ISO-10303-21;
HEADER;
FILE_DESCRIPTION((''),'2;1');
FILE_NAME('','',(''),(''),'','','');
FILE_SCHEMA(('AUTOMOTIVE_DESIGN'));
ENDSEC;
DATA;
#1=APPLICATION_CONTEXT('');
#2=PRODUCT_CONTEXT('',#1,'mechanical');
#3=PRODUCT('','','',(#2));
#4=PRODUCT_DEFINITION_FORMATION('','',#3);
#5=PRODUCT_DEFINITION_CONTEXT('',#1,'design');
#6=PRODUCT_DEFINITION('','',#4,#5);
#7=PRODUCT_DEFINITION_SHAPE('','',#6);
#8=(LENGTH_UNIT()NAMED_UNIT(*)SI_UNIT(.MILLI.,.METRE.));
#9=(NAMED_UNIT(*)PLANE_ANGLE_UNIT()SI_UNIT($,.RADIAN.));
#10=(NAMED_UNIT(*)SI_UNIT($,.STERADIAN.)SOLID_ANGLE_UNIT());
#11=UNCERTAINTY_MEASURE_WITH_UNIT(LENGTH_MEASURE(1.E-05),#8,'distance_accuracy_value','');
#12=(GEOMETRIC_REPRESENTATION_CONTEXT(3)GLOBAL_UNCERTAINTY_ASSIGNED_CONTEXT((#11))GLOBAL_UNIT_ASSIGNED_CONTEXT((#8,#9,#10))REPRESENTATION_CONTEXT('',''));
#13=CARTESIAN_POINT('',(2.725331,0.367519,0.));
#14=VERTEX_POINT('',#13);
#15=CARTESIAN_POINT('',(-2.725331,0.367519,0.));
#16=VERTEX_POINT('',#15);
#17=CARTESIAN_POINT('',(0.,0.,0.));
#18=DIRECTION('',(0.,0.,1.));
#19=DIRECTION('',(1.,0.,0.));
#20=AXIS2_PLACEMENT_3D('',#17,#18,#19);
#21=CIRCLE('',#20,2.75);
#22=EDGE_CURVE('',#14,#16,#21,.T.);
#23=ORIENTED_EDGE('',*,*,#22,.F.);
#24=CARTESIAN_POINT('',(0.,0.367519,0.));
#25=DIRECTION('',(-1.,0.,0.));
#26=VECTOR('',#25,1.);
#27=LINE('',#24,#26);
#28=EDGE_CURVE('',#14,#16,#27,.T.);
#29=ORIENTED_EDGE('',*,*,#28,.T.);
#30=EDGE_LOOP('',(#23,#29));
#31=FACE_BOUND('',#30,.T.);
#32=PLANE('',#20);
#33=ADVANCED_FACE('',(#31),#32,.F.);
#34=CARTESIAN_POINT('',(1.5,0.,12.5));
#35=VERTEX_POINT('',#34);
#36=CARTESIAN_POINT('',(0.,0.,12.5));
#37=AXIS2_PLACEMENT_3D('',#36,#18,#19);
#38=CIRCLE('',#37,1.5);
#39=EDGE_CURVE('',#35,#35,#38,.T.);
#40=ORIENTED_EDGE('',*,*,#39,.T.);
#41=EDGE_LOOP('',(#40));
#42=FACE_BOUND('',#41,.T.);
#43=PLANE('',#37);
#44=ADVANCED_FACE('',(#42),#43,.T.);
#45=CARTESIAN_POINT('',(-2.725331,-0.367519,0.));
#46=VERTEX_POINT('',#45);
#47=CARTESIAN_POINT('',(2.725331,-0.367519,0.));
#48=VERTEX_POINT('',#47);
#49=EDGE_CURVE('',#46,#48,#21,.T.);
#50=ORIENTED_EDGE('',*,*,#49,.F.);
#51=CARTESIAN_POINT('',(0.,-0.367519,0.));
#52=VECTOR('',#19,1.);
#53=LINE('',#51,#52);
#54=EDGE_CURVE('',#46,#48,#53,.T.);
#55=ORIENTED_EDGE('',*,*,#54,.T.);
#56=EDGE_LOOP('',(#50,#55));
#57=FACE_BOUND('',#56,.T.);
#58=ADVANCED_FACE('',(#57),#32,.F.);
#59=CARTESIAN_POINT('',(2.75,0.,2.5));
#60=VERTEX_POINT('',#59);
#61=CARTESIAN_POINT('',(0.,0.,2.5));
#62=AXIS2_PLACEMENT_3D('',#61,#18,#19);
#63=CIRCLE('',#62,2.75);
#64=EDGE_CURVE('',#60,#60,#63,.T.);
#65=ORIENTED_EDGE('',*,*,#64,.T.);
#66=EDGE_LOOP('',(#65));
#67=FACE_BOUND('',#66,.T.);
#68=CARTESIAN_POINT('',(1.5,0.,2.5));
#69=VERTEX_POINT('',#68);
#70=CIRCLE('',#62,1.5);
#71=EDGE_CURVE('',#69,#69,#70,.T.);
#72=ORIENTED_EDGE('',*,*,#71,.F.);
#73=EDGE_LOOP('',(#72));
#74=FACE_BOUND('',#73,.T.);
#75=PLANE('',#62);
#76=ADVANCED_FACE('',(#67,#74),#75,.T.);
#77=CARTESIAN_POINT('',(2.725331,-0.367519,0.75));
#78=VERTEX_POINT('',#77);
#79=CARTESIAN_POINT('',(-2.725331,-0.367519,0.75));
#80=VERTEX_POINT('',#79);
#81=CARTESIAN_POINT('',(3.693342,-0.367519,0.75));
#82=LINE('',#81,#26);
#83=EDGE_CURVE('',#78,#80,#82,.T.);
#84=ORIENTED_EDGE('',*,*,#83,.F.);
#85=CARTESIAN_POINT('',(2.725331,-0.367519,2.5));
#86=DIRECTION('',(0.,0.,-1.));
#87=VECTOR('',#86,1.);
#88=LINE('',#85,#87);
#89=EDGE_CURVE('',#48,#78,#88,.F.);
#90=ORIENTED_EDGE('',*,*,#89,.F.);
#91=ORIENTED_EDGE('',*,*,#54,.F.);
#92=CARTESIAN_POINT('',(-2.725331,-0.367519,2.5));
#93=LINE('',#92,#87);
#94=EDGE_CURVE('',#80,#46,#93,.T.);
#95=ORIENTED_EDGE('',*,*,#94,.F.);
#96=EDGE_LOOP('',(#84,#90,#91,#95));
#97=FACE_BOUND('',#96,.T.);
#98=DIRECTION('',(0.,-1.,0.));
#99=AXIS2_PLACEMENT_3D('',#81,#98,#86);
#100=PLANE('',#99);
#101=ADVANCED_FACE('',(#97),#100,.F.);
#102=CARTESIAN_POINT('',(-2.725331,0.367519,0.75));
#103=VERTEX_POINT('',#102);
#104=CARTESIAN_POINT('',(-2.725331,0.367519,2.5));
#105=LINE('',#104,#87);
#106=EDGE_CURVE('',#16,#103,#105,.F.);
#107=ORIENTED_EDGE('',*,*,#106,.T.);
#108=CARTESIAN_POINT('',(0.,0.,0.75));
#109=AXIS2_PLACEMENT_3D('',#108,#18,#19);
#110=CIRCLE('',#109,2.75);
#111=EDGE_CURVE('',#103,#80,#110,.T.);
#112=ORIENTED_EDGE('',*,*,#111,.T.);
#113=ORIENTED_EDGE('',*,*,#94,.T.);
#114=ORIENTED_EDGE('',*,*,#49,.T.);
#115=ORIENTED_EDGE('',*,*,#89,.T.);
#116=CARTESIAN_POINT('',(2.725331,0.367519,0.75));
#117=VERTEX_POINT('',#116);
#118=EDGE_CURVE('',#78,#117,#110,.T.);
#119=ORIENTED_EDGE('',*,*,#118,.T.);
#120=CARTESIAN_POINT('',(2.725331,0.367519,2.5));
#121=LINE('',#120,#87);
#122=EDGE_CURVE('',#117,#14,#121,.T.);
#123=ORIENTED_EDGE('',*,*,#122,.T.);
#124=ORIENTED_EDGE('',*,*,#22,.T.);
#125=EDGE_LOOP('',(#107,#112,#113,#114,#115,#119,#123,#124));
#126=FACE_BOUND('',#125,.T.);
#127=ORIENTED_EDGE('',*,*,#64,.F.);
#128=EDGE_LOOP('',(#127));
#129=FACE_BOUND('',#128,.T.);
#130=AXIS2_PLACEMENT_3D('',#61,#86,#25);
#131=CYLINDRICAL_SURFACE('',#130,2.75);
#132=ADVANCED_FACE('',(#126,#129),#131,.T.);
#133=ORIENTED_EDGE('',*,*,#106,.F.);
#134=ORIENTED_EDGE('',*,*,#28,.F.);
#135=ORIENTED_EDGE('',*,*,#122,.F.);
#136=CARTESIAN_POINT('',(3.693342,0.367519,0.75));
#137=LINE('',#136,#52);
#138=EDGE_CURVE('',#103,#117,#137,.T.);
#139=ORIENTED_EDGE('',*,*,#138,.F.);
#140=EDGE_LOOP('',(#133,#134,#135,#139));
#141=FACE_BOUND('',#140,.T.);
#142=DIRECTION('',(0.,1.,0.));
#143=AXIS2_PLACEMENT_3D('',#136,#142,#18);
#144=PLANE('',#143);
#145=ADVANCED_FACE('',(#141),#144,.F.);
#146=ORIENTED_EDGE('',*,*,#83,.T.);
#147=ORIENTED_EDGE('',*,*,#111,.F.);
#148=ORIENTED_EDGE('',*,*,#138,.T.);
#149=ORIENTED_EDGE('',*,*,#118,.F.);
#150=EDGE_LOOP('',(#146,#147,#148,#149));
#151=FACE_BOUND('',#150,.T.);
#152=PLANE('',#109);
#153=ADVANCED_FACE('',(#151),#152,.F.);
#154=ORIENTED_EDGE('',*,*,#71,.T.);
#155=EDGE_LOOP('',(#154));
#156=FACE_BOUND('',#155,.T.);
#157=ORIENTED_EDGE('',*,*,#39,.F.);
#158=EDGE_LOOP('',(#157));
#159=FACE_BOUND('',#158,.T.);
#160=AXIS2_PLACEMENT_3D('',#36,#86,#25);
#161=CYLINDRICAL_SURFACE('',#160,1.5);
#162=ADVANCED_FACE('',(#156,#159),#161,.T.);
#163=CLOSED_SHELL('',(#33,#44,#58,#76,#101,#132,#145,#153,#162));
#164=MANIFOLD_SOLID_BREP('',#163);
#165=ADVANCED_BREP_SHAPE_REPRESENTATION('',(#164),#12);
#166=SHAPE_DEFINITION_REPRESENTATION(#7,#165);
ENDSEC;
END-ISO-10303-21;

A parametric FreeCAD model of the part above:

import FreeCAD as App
import Part
import Sketcher

V = App.Vector
Q = App.Units.Quantity


def add_polygon(sketch, points):
    """Adds a closed chain of lines whose ends are joined by coincident constraints."""
    first, n = sketch.GeometryCount, len(points)
    for a, b in zip(points, points[1:] + points[:1]):
        sketch.addGeometry(Part.LineSegment(App.Vector(*a, 0), App.Vector(*b, 0)), False)
    for i in range(n):
        sketch.addConstraint(Sketcher.Constraint("Coincident", first + i, 2, first + (i + 1) % n, 1))

doc = App.newDocument("Part")
params = doc.addObject("Spreadsheet::Sheet", "Params")
for row, (alias, value) in enumerate([
    ("sketch1_diameter", "5.5 mm"),
    ("pad1_length", "2.5 mm"),
    ("sketch2_diameter", "3 mm"),
    ("pad2_length", "10 mm"),
    ("pocket1_length", "0.75 mm"),
], start=1):
    params.set(f"A{row}", alias)
    params.set(f"B{row}", "=" + value)
    params.setAlias(f"B{row}", alias)

body = doc.addObject("PartDesign::Body", "Body")

sketch1 = body.newObject("Sketcher::SketchObject", "Sketch")
sketch1.AttachmentSupport = (doc.getObject("XY_Plane"), [""])
sketch1.MapMode = "FlatFace"
sketch1.addGeometry(Part.Circle(V(0, 0, 0), V(0, 0, 1), 2.8), False)
sketch1.addConstraint(Sketcher.Constraint("Coincident", 0, 3, -1, 1))
sketch1.addConstraint(Sketcher.Constraint("Diameter", 0, Q("5.5 mm")))
sketch1.setExpression("Constraints[1]", "Params.sketch1_diameter")
pad1 = body.newObject("PartDesign::Pad", "Pad")
pad1.Profile = sketch1
pad1.setExpression("Length", "Params.pad1_length")

sketch2 = body.newObject("Sketcher::SketchObject", "Sketch001")
sketch2.AttachmentSupport = (doc.getObject("XY_Plane"), [""])
sketch2.MapMode = "FlatFace"
sketch2.AttachmentOffset = App.Placement(V(0, 0, 2.5), App.Rotation())
sketch2.addGeometry(Part.Circle(V(0, 0, 0), V(0, 0, 1), 1.5), False)
sketch2.addConstraint(Sketcher.Constraint("Coincident", 0, 3, -1, 1))
sketch2.addConstraint(Sketcher.Constraint("Diameter", 0, Q("3 mm")))
sketch2.setExpression("Constraints[1]", "Params.sketch2_diameter")
pad2 = body.newObject("PartDesign::Pad", "Pad001")
pad2.Profile = sketch2
pad2.setExpression("Length", "Params.pad2_length")

sketch3 = body.newObject("Sketcher::SketchObject", "Sketch002")
sketch3.AttachmentSupport = (doc.getObject("XY_Plane"), [""])
sketch3.MapMode = "FlatFace"
add_polygon(sketch3, [(3.7, 0.4), (3.7, -0.4), (-3.7, -0.4), (-3.7, 0.4)])
sketch3.addConstraint(Sketcher.Constraint("Vertical", 0))
sketch3.addConstraint(Sketcher.Constraint("Horizontal", 1))
sketch3.addConstraint(Sketcher.Constraint("Vertical", 2))
sketch3.addConstraint(Sketcher.Constraint("Horizontal", 3))
sketch3.addConstraint(Sketcher.Constraint("Symmetric", 0, 2, 2, 2, -1, 1))
sketch3.addConstraint(Sketcher.Constraint("DistanceY", 0, 2, 0, 1, Q("0.735039 mm")))
sketch3.addConstraint(Sketcher.Constraint("DistanceX", 1, 2, 1, 1, Q("7.386684 mm")))
pocket1 = body.newObject("PartDesign::Pocket", "Pocket")
pocket1.Profile = sketch3
pocket1.setExpression("Length", "Params.pocket1_length")
pocket1.Reversed = True

doc.recompute()
